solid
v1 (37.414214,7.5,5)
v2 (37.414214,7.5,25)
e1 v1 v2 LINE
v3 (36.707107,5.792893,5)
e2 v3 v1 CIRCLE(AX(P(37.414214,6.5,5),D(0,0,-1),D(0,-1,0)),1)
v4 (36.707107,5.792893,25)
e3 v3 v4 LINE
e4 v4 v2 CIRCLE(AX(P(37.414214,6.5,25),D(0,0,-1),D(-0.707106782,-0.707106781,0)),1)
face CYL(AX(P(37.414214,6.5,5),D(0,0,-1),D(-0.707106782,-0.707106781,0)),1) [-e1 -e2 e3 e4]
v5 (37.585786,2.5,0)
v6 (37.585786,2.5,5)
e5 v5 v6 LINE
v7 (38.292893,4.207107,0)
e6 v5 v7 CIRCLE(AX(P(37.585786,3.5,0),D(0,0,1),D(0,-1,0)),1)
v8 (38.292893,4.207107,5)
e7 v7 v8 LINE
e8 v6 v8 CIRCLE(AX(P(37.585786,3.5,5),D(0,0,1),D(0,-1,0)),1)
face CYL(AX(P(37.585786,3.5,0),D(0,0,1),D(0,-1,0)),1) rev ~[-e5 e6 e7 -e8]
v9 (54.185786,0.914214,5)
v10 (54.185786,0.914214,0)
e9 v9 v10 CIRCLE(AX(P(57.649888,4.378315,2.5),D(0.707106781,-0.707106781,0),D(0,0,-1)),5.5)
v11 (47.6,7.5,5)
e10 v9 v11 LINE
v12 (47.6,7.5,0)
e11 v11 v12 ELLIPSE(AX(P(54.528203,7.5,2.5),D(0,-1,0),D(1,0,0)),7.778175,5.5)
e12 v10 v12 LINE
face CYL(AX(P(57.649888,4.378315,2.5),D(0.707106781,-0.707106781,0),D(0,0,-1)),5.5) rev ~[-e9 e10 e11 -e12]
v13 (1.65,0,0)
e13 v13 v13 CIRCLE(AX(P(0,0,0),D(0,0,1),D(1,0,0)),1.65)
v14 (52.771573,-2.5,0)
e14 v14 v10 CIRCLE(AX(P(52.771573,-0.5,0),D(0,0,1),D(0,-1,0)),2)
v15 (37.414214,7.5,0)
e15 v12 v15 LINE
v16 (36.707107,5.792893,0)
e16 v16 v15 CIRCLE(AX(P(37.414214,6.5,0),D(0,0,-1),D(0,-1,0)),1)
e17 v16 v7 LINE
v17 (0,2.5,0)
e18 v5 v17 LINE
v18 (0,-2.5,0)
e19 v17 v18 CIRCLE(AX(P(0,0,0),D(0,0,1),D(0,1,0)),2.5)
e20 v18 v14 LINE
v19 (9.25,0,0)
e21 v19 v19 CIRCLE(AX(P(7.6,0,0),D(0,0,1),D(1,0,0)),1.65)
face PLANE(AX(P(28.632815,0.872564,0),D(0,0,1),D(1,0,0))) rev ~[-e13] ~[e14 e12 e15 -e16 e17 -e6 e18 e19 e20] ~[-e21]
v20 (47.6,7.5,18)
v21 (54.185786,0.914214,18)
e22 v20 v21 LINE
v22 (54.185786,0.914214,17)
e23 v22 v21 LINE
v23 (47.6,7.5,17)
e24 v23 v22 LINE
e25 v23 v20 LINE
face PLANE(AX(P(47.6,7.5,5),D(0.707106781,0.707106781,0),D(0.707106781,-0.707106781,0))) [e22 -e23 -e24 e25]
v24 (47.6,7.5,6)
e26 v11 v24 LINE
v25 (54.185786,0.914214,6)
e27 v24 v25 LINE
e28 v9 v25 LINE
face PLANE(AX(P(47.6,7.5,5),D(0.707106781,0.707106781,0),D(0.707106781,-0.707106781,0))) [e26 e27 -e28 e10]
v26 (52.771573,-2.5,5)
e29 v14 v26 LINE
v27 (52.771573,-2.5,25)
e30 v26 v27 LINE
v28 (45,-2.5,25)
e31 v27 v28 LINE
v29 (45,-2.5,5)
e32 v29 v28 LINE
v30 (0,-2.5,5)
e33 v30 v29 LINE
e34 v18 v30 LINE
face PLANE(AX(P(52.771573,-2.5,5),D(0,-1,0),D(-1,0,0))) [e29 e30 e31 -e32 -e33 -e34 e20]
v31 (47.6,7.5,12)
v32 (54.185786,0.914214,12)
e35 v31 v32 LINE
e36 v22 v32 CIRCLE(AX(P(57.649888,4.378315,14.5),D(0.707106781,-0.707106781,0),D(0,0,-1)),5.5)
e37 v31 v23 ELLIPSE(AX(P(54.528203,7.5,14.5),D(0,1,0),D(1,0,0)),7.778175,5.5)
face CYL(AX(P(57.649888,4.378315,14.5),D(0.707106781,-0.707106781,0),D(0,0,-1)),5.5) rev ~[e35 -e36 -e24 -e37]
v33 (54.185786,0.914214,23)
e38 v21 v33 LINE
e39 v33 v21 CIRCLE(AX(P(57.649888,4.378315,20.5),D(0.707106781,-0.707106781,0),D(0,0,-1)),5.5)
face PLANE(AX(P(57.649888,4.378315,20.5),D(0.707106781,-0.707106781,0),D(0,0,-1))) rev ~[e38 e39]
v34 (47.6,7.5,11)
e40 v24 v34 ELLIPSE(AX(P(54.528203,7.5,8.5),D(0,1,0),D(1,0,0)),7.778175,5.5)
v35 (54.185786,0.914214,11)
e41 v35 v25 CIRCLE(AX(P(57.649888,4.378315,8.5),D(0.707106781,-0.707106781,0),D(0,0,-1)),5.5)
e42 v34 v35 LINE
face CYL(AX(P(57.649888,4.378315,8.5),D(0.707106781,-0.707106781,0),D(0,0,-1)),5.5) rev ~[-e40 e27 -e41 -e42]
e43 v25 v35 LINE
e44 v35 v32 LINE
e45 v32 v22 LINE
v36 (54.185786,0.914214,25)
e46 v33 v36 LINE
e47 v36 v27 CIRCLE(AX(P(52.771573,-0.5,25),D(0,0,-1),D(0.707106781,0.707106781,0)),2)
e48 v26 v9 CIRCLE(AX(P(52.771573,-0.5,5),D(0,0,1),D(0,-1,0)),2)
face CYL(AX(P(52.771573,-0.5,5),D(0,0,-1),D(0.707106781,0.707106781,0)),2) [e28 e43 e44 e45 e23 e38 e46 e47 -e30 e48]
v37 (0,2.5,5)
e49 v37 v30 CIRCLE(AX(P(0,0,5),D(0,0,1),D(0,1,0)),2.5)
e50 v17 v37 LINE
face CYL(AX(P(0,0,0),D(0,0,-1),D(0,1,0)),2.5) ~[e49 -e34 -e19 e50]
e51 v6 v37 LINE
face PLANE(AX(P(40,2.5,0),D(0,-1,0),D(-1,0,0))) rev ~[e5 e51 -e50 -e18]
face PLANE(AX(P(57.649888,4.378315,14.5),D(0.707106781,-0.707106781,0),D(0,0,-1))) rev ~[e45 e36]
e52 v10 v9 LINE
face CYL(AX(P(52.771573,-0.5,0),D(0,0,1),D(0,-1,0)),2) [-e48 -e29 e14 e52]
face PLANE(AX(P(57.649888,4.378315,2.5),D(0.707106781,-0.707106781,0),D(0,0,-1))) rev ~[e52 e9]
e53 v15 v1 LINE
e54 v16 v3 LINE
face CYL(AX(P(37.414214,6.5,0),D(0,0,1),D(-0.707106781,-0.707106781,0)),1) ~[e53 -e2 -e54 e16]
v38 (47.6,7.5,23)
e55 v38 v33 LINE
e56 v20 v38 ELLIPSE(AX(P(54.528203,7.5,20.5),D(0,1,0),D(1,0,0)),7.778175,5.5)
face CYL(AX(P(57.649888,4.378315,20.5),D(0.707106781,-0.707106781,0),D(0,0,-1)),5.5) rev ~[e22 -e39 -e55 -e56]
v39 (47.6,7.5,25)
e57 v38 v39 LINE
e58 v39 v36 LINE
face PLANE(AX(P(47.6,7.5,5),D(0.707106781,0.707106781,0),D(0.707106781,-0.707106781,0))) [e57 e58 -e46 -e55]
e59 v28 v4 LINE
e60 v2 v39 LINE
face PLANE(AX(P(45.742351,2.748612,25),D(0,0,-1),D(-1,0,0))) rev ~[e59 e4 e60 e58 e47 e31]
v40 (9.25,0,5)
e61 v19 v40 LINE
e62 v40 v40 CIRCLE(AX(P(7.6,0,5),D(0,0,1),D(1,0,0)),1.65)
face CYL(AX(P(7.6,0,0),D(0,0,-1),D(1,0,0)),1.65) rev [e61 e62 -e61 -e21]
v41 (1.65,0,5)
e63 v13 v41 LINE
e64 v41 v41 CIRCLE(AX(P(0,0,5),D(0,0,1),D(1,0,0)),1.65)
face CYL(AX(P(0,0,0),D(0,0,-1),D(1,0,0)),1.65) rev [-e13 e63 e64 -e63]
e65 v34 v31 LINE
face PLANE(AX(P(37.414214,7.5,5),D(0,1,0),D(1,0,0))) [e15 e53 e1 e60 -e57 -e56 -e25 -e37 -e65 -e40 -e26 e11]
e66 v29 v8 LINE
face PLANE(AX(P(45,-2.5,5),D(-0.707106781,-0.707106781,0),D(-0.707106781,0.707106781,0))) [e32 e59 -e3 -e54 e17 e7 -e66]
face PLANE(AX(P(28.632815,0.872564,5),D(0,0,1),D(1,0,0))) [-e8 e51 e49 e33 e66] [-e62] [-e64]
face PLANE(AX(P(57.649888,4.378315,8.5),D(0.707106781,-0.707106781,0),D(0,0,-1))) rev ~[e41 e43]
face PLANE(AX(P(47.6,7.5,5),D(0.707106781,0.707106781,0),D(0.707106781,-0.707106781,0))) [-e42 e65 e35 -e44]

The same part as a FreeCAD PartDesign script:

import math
import FreeCAD as App
import Part
import Sketcher
Q = App.Units.Quantity


def edges_at(feature, points):
    """Names of the edges that pass closest to the given points."""
    edges = feature.Shape.Edges
    near = lambda p: min(range(len(edges)), key=lambda i: edges[i].distToShape(Part.Vertex(*p))[0])
    return sorted({f"Edge{near(p) + 1}" for p in points})

doc = App.newDocument("Part")
body = doc.addObject("PartDesign::Body", "Body")

# Sketch on XY plane
sketch1 = body.newObject("Sketcher::SketchObject", "Sketch")
sketch1.AttachmentSupport = (doc.getObject("XY_Plane"), [""])
sketch1.MapMode = "FlatFace"
sketch1.addGeometry([
    Part.LineSegment(App.Vector(40, 2.5, 0), App.Vector(0, 2.5, 0)),  # 0
    Part.ArcOfCircle(Part.Circle(App.Vector(0, 0, 0), App.Vector(0, 0, 1), 2.5), math.radians(90), math.radians(270)),  # 1
    Part.LineSegment(App.Vector(0, -2.5, 0), App.Vector(57.6, -2.5, 0)),  # 2
    Part.LineSegment(App.Vector(57.6, -2.5, 0), App.Vector(47.6, 7.5, 0)),  # 3
    Part.LineSegment(App.Vector(47.6, 7.5, 0), App.Vector(35, 7.5, 0)),  # 4
    Part.LineSegment(App.Vector(35, 7.5, 0), App.Vector(40, 2.5, 0)),  # 5
    Part.Circle(App.Vector(0, 0, 0), App.Vector(0, 0, 1), 1.65),  # 6
    Part.Circle(App.Vector(7.6, 0, 0), App.Vector(0, 0, 1), 1.65),  # 7
], False)
sketch1.addConstraint([
    Sketcher.Constraint("Tangent", 0, 2, 1, 1),
    Sketcher.Constraint("Tangent", 1, 2, 2, 1),
    Sketcher.Constraint("Coincident", 2, 2, 3, 1),
    Sketcher.Constraint("Coincident", 3, 2, 4, 1),
    Sketcher.Constraint("Coincident", 4, 2, 5, 1),
    Sketcher.Constraint("Coincident", 5, 2, 0, 1),
    Sketcher.Constraint("Horizontal", 0),
    Sketcher.Constraint("Horizontal", 2),
    Sketcher.Constraint("Horizontal", 4),
    Sketcher.Constraint("Coincident", 1, 3, -1, 1),
    Sketcher.Constraint("Coincident", 6, 3, -1, 1),
    Sketcher.Constraint("Equal", 6, 7),
    Sketcher.Constraint("PointOnObject", 7, 3, -1),
    Sketcher.Constraint("Parallel", 3, 5),
    Sketcher.Constraint("Diameter", 6, Q("3.3 mm")),
    Sketcher.Constraint("Radius", 1, Q("2.5 mm")),
    Sketcher.Constraint("DistanceX", 0, 2, 0, 1, Q("40 mm")),
    Sketcher.Constraint("Angle", 3, Q("135 deg")),
    Sketcher.Constraint("DistanceX", 2, 1, 2, 2, Q("57.6 mm")),
    Sketcher.Constraint("DistanceX", -1, 1, 4, 2, Q("35 mm")),
    Sketcher.Constraint("DistanceX", 7, 3, 2, 2, Q("50 mm")),
])
pad1 = body.newObject("PartDesign::Pad", "Pad")
pad1.Profile = sketch1
pad1.Length = 5
doc.recompute()

fillet = body.newObject("PartDesign::Fillet", "Fillet")
fillet.Base = (pad1, edges_at(pad1, [(57.6, -2.5, 2.5)]))
fillet.Radius = 2
doc.recompute()

fillet2 = body.newObject("PartDesign::Fillet", "Fillet001")
fillet2.Base = (fillet, edges_at(fillet, [(40, 2.5, 2.5)]))
fillet2.Radius = 1
doc.recompute()

fillet3 = body.newObject("PartDesign::Fillet", "Fillet002")
fillet3.Base = (fillet2, edges_at(fillet2, [(35, 7.5, 2.5)]))
fillet3.Radius = 1

# Sketch on an angled plane
sketch2 = body.newObject("Sketcher::SketchObject", "Sketch001")
sketch2.Placement = App.Placement(App.Vector(26.635786, -26.635786, 0), App.Rotation(App.Vector(0, 0, -1), App.Vector(0.707106781, 0.707106781, 0), App.Vector(0.707106781, -0.707106781, 0), "ZXY"))
sketch2.addGeometry(Part.Circle(App.Vector(-2.5, 43.860563, 0), App.Vector(0, 0, 1), 5.5), False)
sketch2.addConstraint([
    Sketcher.Constraint("Diameter", 0, Q("11 mm")),
    Sketcher.Constraint("DistanceX", 0, 3, -1, 1, Q("2.5 mm")),
    Sketcher.Constraint("DistanceY", -1, 1, 0, 3, Q("43.860563 mm")),
])
pocket1 = body.newObject("PartDesign::Pocket", "Pocket")
pocket1.Profile = sketch2
pocket1.Length = 34

# Sketch on XY plane
sketch3 = body.newObject("Sketcher::SketchObject", "Sketch002")
sketch3.AttachmentSupport = (doc.getObject("XY_Plane"), [""])
sketch3.MapMode = "FlatFace"
sketch3.AttachmentOffset = App.Placement(App.Vector(0, 0, 5), App.Rotation())
sketch3.addGeometry([
    Part.LineSegment(App.Vector(47.6, 7.5, 0), App.Vector(37.414214, 7.5, 0)),  # 0
    Part.ArcOfCircle(Part.Circle(App.Vector(37.414214, 6.5, 0), App.Vector(0, 0, 1), 1), math.radians(90), math.radians(225)),  # 1
    Part.LineSegment(App.Vector(36.707107, 5.792893, 0), App.Vector(45, -2.5, 0)),  # 2
    Part.LineSegment(App.Vector(45, -2.5, 0), App.Vector(52.771573, -2.5, 0)),  # 3
    Part.ArcOfCircle(Part.Circle(App.Vector(52.771573, -0.5, 0), App.Vector(0, 0, 1), 2), math.radians(-90), math.radians(45)),  # 4
    Part.LineSegment(App.Vector(54.185786, 0.914214, 0), App.Vector(47.6, 7.5, 0)),  # 5
], False)
sketch3.addConstraint([
    Sketcher.Constraint("Tangent", 0, 2, 1, 1),
    Sketcher.Constraint("Tangent", 1, 2, 2, 1),
    Sketcher.Constraint("Coincident", 2, 2, 3, 1),
    Sketcher.Constraint("Tangent", 3, 2, 4, 1),
    Sketcher.Constraint("Tangent", 4, 2, 5, 1),
    Sketcher.Constraint("Coincident", 5, 2, 0, 1),
    Sketcher.Constraint("Horizontal", 0),
    Sketcher.Constraint("Horizontal", 3),
    Sketcher.Constraint("Parallel", 2, 5),
    Sketcher.Constraint("Radius", 1, Q("1 mm")),
    Sketcher.Constraint("Radius", 4, Q("2 mm")),
    Sketcher.Constraint("Angle", 2, Q("-45 deg")),
    Sketcher.Constraint("DistanceX", -1, 1, 2, 2, Q("45 mm")),
    Sketcher.Constraint("DistanceY", 4, 3, 1, 3, Q("7 mm")),
    Sketcher.Constraint("DistanceY", -1, 1, 1, 3, Q("6.5 mm")),
    Sketcher.Constraint("DistanceX", -1, 1, 5, 2, Q("47.6 mm")),
])
pad2 = body.newObject("PartDesign::Pad", "Pad001")
pad2.Profile = sketch3
pad2.Length = 20
doc.recompute()

linearpattern = body.newObject("PartDesign::LinearPattern", "LinearPattern")
linearpattern.Originals = [pocket1]
linearpattern.Direction = (doc.getObject("Z_Axis"), [""])
linearpattern.Mode = "offset"
linearpattern.Offset = 6
linearpattern.Occurrences = 4
body.Tip = linearpattern

doc.recompute()
